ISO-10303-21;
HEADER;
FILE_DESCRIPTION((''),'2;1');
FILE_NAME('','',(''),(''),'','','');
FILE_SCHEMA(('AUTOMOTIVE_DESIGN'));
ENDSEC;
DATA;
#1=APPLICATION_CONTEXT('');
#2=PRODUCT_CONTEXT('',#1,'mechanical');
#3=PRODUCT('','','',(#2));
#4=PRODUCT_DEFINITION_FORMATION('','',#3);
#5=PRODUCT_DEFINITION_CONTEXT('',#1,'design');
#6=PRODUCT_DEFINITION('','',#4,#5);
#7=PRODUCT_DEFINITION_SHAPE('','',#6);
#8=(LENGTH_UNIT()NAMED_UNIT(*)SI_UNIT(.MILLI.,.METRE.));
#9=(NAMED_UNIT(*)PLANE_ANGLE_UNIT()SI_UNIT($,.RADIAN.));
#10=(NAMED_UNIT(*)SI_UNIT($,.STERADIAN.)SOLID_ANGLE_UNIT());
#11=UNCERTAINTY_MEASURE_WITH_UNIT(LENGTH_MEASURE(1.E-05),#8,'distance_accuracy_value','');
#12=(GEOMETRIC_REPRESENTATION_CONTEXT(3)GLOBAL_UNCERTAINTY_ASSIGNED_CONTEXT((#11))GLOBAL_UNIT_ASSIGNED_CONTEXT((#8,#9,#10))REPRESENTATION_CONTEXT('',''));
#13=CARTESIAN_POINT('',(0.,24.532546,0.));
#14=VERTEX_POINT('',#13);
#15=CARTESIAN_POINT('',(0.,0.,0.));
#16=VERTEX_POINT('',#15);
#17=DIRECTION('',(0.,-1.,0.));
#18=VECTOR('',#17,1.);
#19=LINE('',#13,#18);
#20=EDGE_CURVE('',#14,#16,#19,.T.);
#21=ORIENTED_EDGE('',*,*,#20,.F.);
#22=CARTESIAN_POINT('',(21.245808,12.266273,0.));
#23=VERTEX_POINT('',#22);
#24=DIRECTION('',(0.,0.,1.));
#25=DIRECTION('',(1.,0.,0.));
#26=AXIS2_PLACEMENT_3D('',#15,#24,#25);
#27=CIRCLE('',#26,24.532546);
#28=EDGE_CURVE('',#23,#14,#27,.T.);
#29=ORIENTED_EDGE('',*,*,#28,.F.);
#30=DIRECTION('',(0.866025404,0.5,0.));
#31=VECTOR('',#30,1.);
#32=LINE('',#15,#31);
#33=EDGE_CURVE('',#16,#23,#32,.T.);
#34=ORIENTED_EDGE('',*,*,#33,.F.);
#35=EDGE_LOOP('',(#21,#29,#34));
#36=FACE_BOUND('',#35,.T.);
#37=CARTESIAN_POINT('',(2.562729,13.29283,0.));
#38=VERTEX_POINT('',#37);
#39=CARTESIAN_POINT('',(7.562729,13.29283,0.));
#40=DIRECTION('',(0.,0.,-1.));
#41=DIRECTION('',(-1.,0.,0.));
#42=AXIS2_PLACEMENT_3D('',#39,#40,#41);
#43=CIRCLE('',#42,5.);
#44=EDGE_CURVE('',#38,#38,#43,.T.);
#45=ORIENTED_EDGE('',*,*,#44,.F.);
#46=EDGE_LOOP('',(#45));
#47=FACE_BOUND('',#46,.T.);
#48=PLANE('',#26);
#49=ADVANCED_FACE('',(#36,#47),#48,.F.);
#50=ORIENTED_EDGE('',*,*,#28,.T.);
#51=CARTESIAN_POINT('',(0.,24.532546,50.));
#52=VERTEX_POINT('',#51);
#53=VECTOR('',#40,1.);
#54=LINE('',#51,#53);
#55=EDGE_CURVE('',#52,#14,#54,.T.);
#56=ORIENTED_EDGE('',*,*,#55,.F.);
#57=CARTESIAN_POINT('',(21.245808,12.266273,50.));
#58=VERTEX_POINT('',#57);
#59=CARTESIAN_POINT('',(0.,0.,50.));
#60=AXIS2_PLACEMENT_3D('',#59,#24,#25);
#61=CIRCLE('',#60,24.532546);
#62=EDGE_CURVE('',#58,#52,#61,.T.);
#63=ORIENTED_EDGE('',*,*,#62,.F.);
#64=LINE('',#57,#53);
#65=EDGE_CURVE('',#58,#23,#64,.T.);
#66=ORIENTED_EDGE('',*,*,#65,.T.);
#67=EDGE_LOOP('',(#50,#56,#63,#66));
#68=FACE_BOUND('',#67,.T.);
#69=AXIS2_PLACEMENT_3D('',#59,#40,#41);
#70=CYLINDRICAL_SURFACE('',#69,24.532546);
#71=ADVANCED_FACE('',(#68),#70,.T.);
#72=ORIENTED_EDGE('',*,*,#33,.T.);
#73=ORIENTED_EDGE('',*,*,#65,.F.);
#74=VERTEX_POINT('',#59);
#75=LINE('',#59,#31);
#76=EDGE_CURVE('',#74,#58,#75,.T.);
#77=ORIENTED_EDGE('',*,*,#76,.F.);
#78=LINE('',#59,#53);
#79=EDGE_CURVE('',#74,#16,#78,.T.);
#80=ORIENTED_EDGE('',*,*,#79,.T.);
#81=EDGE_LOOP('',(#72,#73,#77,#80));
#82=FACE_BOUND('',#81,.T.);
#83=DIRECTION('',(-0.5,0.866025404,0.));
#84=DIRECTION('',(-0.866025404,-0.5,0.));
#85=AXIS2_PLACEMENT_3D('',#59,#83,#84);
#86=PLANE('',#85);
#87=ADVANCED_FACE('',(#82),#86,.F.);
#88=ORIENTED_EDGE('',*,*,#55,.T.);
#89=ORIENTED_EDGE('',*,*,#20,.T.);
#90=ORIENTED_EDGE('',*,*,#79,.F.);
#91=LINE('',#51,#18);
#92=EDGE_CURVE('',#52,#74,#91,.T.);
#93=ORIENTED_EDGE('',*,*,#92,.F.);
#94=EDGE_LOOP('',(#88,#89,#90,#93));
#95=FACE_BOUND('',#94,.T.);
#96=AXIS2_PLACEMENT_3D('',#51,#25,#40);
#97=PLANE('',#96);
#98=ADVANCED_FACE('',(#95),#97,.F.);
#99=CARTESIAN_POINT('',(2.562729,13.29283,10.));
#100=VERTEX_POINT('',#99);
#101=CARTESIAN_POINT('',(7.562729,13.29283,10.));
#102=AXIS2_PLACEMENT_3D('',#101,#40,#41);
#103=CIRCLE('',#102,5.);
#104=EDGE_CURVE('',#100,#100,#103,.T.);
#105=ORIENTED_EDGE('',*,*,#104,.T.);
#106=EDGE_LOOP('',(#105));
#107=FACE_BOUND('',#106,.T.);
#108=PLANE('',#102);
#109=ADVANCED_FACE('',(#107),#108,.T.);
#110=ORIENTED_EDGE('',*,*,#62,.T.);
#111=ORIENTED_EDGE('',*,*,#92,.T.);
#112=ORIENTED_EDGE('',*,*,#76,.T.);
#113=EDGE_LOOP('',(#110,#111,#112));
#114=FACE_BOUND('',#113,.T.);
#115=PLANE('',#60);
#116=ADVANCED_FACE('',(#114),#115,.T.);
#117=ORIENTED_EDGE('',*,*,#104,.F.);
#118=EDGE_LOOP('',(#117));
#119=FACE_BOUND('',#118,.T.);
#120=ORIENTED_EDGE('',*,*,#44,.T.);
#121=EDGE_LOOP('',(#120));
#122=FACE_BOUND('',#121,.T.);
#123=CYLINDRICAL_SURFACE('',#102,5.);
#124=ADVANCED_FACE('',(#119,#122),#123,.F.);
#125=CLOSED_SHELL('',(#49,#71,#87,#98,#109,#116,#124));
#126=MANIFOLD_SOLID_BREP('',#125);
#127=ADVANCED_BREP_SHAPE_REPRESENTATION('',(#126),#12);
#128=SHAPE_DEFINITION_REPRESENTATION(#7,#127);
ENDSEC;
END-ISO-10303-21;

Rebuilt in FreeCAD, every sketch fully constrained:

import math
import FreeCAD as App
import Part
import Sketcher
from FreeCAD import Vector
Q = App.Units.Quantity

doc = App.newDocument("Part")
body = doc.addObject("PartDesign::Body", "Body")

# Sketch on XY plane
sketch1 = body.newObject("Sketcher::SketchObject", "Sketch")
sketch1.AttachmentSupport = (doc.getObject("XY_Plane"), [""])
sketch1.MapMode = "FlatFace"
sketch1.addGeometry([
    Part.LineSegment(Vector(0, 24.532546, 0), Vector(0, 0, 0)),
    Part.LineSegment(Vector(0, 0, 0), Vector(21.245808, 12.266273, 0)),
    Part.ArcOfCircle(Part.Circle(Vector(0, 0, 0), Vector(0, 0, 1), 24.532546), math.radians(30), math.radians(90)),
], False)
sketch1.addConstraint([
    Sketcher.Constraint("Coincident", 0, 2, 1, 1),
    Sketcher.Constraint("Coincident", 1, 2, 2, 1),
    Sketcher.Constraint("Coincident", 2, 2, 0, 1),
    Sketcher.Constraint("Vertical", 0),
    Sketcher.Constraint("Coincident", 2, 3, -1, 1),
    Sketcher.Constraint("Coincident", 0, 2, -1, 1),
    Sketcher.Constraint("Angle", 1, Q("30 deg")),
    Sketcher.Constraint("Radius", 2, 24.532546),
])
pad1 = body.newObject("PartDesign::Pad", "Pad")
pad1.Profile = sketch1
pad1.Length = 50

# Sketch on XY plane
sketch2 = body.newObject("Sketcher::SketchObject", "Sketch001")
sketch2.AttachmentSupport = (doc.getObject("XY_Plane"), [""])
sketch2.MapMode = "FlatFace"
sketch2.addGeometry(Part.Circle(Vector(7.562729, 13.29283, 0), Vector(0, 0, 1), 5), False)
sketch2.addConstraint([
    Sketcher.Constraint("Diameter", 0, 10.0),
    Sketcher.Constraint("DistanceX", -1, 1, 0, 3, 7.562729),
    Sketcher.Constraint("DistanceY", -1, 1, 0, 3, 13.29283),
])
pocket1 = body.newObject("PartDesign::Pocket", "Pocket")
pocket1.Profile = sketch2
pocket1.Length = 10
pocket1.Reversed = True

doc.recompute()
